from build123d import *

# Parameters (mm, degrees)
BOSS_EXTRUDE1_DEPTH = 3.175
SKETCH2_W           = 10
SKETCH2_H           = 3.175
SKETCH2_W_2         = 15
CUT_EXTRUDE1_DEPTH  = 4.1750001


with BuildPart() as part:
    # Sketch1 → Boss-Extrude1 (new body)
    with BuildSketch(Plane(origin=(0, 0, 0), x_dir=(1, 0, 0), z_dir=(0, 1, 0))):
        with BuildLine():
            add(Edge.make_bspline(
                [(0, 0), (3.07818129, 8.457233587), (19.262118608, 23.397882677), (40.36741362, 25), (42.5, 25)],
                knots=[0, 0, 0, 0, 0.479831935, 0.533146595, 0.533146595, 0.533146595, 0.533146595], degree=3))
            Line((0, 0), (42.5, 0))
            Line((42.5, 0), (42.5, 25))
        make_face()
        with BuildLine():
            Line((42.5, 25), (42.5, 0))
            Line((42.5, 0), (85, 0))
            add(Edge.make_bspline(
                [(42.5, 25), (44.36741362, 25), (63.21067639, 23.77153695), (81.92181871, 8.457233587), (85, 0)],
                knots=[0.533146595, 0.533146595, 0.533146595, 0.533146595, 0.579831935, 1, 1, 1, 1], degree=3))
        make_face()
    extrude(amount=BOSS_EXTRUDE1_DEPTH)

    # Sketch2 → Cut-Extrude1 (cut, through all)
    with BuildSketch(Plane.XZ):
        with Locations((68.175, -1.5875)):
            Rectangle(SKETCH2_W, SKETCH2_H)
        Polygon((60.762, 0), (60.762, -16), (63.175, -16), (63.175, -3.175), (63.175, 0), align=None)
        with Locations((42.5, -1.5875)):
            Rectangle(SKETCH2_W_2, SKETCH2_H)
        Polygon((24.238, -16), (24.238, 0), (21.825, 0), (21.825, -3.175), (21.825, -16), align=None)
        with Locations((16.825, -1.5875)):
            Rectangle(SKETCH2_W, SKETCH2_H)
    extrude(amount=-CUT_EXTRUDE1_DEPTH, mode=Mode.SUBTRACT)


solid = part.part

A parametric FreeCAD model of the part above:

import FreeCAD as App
import Part
import Sketcher
from FreeCAD import Vector
Q = App.Units.Quantity


def add_polygon(sketch, points):
    """Adds a closed chain of lines whose ends are joined by coincident constraints."""
    first, n = sketch.GeometryCount, len(points)
    for a, b in zip(points, points[1:] + points[:1]):
        sketch.addGeometry(Part.LineSegment(App.Vector(*a, 0), App.Vector(*b, 0)), False)
    for i in range(n):
        sketch.addConstraint(Sketcher.Constraint("Coincident", first + i, 2, first + (i + 1) % n, 1))

doc = App.newDocument("Part")
body = doc.addObject("PartDesign::Body", "Body")

sketch1 = body.newObject("Sketcher::SketchObject", "Sketch")
sketch1.AttachmentSupport = (doc.getObject("XZ_Plane"), [""])
sketch1.MapMode = "FlatFace"
sketch1.addGeometry([
    Part.BSplineCurve([Vector(85, 0, 0), Vector(81.921819, -8.457234, 0), Vector(63.210676, -23.771537, 0), Vector(42.215513, -25.14029, 0), Vector(19.262119, -23.397883, 0), Vector(3.078181, -8.457234, 0), Vector(0, 0, 0)], [4, 1, 1, 1, 4], [0.533146595, 0.95331466, 1, 1.053314659, 1.533146584], False, 3, [1, 1, 1, 1, 1, 1, 1], False),
    Part.LineSegment(Vector(0, 0, 0), Vector(85, 0, 0)),
], False)
sketch1.addConstraint([
    Sketcher.Constraint("Block", 0),
    Sketcher.Constraint("Coincident", 0, 1, 1, 2),
    Sketcher.Constraint("Coincident", 1, 1, 0, 2),
])
pad1 = body.newObject("PartDesign::Pad", "Pad")
pad1.Profile = sketch1
pad1.Length = 3.175
pad1.Reversed = True

sketch2 = body.newObject("Sketcher::SketchObject", "Sketch001")
sketch2.AttachmentSupport = (doc.getObject("XZ_Plane"), [""])
sketch2.MapMode = "FlatFace"
add_polygon(sketch2, [(63.2, -3.2), (73.2, -3.2), (73.2, 0), (60.8, 0), (60.8, -16), (63.2, -16)])
add_polygon(sketch2, [(35, 0), (35, -3.2), (50, -3.2), (50, 0)])
add_polygon(sketch2, [(24.2, -16), (24.2, 0), (11.8, 0), (11.8, -3.2), (21.8, -3.2), (21.8, -16)])
sketch2.addConstraint([
    Sketcher.Constraint("Horizontal", 0),
    Sketcher.Constraint("Vertical", 1),
    Sketcher.Constraint("Horizontal", 2),
    Sketcher.Constraint("Vertical", 3),
    Sketcher.Constraint("Horizontal", 4),
    Sketcher.Constraint("Vertical", 5),
    Sketcher.Constraint("Vertical", 6),
    Sketcher.Constraint("Horizontal", 7),
    Sketcher.Constraint("Vertical", 8),
    Sketcher.Constraint("Horizontal", 9),
    Sketcher.Constraint("Vertical", 10),
    Sketcher.Constraint("Horizontal", 11),
    Sketcher.Constraint("Vertical", 12),
    Sketcher.Constraint("Horizontal", 13),
    Sketcher.Constraint("Vertical", 14),
    Sketcher.Constraint("Horizontal", 15),
    Sketcher.Constraint("PointOnObject", 1, 2, -1),
    Sketcher.Constraint("PointOnObject", 8, 2, -1),
    Sketcher.Constraint("PointOnObject", 10, 2, -1),
    Sketcher.Constraint("Horizontal", 5, 2, 6, 2),
    Sketcher.Constraint("Horizontal", 7, 2, 12, 2),
    Sketcher.Constraint("Horizontal", 4, 2, 14, 2),
    Sketcher.Constraint("Equal", 2, 11),
    Sketcher.Constraint("Equal", 0, 13),
    Sketcher.Constraint("DistanceX", 0, 1, 0, 2, Q("10 mm")),
    Sketcher.Constraint("DistanceX", 7, 1, 7, 2, Q("15 mm")),
    Sketcher.Constraint("DistanceY", 3, 2, 3, 1, Q("16 mm")),
    Sketcher.Constraint("DistanceX", -1, 1, 6, 2, Q("35 mm")),
    Sketcher.Constraint("DistanceX", 2, 2, 2, 1, Q("12.413 mm")),
    Sketcher.Constraint("DistanceY", 1, 1, 1, 2, Q("3.175 mm")),
    Sketcher.Constraint("DistanceX", -1, 1, 0, 2, Q("73.175 mm")),
    Sketcher.Constraint("DistanceX", -1, 1, 10, 2, Q("24.238 mm")),
])
pocket1 = body.newObject("PartDesign::Pocket", "Pocket")
pocket1.Profile = sketch2
pocket1.Type = "ThroughAll"

doc.recompute()
